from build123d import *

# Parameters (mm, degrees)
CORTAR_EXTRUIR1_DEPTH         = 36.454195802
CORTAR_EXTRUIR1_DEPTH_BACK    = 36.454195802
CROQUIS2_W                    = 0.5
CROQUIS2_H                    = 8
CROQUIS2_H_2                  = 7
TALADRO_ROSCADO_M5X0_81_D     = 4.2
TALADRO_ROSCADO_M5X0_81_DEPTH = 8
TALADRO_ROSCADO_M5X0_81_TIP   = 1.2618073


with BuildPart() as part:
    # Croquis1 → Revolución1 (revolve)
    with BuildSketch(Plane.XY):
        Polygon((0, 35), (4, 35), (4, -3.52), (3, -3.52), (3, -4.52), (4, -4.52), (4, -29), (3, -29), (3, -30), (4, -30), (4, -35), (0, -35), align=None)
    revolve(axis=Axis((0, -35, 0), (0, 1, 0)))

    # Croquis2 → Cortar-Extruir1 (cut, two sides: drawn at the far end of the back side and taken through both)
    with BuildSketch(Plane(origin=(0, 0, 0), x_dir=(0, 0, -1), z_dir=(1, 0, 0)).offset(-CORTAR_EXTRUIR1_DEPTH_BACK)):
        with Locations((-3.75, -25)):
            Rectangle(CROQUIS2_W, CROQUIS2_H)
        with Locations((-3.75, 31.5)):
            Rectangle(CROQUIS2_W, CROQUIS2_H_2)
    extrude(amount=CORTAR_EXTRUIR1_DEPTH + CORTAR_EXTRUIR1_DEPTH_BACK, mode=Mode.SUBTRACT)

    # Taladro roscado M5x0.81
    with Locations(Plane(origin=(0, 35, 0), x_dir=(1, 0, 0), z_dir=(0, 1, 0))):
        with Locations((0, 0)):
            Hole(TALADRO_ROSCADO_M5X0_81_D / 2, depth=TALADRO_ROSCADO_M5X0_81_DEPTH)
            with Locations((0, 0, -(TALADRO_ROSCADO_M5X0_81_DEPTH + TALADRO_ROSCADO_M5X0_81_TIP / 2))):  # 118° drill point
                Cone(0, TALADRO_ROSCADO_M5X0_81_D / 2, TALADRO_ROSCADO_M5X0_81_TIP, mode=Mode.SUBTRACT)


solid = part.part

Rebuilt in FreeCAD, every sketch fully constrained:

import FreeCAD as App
import Part
import Sketcher

doc = App.newDocument("Part")
body = doc.addObject("PartDesign::Body", "Body")

# Sketch on XY plane
sketch1 = body.newObject("Sketcher::SketchObject", "Sketch")
sketch1.AttachmentSupport = (doc.getObject("XY_Plane"), [""])
sketch1.MapMode = "FlatFace"
sketch1.addGeometry(Part.LineSegment(App.Vector(4, 35, 0), App.Vector(0, 35, 0)), False)
sketch1.addGeometry(Part.LineSegment(App.Vector(0, 35, 0), App.Vector(0, -35, 0)), False)
sketch1.addGeometry(Part.LineSegment(App.Vector(0, -35, 0), App.Vector(4, -35, 0)), False)
sketch1.addGeometry(Part.LineSegment(App.Vector(4, -35, 0), App.Vector(4, -30, 0)), False)
sketch1.addGeometry(Part.LineSegment(App.Vector(4, -30, 0), App.Vector(3, -30, 0)), False)
sketch1.addGeometry(Part.LineSegment(App.Vector(3, -30, 0), App.Vector(3, -29, 0)), False)
sketch1.addGeometry(Part.LineSegment(App.Vector(3, -29, 0), App.Vector(4, -29, 0)), False)
sketch1.addGeometry(Part.LineSegment(App.Vector(4, -29, 0), App.Vector(4, -4.5, 0)), False)
sketch1.addGeometry(Part.LineSegment(App.Vector(4, -4.5, 0), App.Vector(3, -4.5, 0)), False)
sketch1.addGeometry(Part.LineSegment(App.Vector(3, -4.5, 0), App.Vector(3, -3.5, 0)), False)
sketch1.addGeometry(Part.LineSegment(App.Vector(3, -3.5, 0), App.Vector(4, -3.5, 0)), False)
sketch1.addGeometry(Part.LineSegment(App.Vector(4, -3.5, 0), App.Vector(4, 35, 0)), False)
sketch1.addConstraint(Sketcher.Constraint("Coincident", 0, 2, 1, 1))
sketch1.addConstraint(Sketcher.Constraint("Coincident", 1, 2, 2, 1))
sketch1.addConstraint(Sketcher.Constraint("Coincident", 2, 2, 3, 1))
sketch1.addConstraint(Sketcher.Constraint("Coincident", 3, 2, 4, 1))
sketch1.addConstraint(Sketcher.Constraint("Coincident", 4, 2, 5, 1))
sketch1.addConstraint(Sketcher.Constraint("Coincident", 5, 2, 6, 1))
sketch1.addConstraint(Sketcher.Constraint("Coincident", 6, 2, 7, 1))
sketch1.addConstraint(Sketcher.Constraint("Coincident", 7, 2, 8, 1))
sketch1.addConstraint(Sketcher.Constraint("Coincident", 8, 2, 9, 1))
sketch1.addConstraint(Sketcher.Constraint("Coincident", 9, 2, 10, 1))
sketch1.addConstraint(Sketcher.Constraint("Coincident", 10, 2, 11, 1))
sketch1.addConstraint(Sketcher.Constraint("Coincident", 11, 2, 0, 1))
sketch1.addConstraint(Sketcher.Constraint("Horizontal", 0))
sketch1.addConstraint(Sketcher.Constraint("Vertical", 1))
sketch1.addConstraint(Sketcher.Constraint("Horizontal", 2))
sketch1.addConstraint(Sketcher.Constraint("Vertical", 3))
sketch1.addConstraint(Sketcher.Constraint("Horizontal", 4))
sketch1.addConstraint(Sketcher.Constraint("Vertical", 5))
sketch1.addConstraint(Sketcher.Constraint("Horizontal", 6))
sketch1.addConstraint(Sketcher.Constraint("Vertical", 7))
sketch1.addConstraint(Sketcher.Constraint("Horizontal", 8))
sketch1.addConstraint(Sketcher.Constraint("Vertical", 9))
sketch1.addConstraint(Sketcher.Constraint("Horizontal", 10))
sketch1.addConstraint(Sketcher.Constraint("Vertical", 11))
sketch1.addConstraint(Sketcher.Constraint("Symmetric", 0, 2, 1, 2, -1, 1))
sketch1.addConstraint(Sketcher.Constraint("Vertical", 3, 2, 6, 2))
sketch1.addConstraint(Sketcher.Constraint("Vertical", 5, 2, 8, 2))
sketch1.addConstraint(Sketcher.Constraint("Vertical", 7, 2, 10, 2))
sketch1.addConstraint(Sketcher.Constraint("Equal", 10, 5))
sketch1.addConstraint(Sketcher.Constraint("Equal", 5, 9))
sketch1.addConstraint(Sketcher.Constraint("DistanceX", 0, 2, 0, 1, 4.0))
sketch1.addConstraint(Sketcher.Constraint("DistanceX", 4, 2, 4, 1, 1.0))
sketch1.addConstraint(Sketcher.Constraint("DistanceY", 1, 2, 1, 1, 70.0))
sketch1.addConstraint(Sketcher.Constraint("DistanceY", 3, 1, 3, 2, 5.0))
sketch1.addConstraint(Sketcher.Constraint("DistanceY", 7, 1, 7, 2, 24.48))
revolution = body.newObject("PartDesign::Revolution", "Revolution")
revolution.Profile = sketch1
revolution.ReferenceAxis = (sketch1, ["V_Axis"])
revolution.Angle = 360

# Sketch on YZ plane
sketch2 = body.newObject("Sketcher::SketchObject", "Sketch001")
sketch2.AttachmentSupport = (doc.getObject("YZ_Plane"), [""])
sketch2.MapMode = "FlatFace"
sketch2.addGeometry(Part.LineSegment(App.Vector(-21, 4, 0), App.Vector(-29, 4, 0)), False)
sketch2.addGeometry(Part.LineSegment(App.Vector(-29, 4, 0), App.Vector(-29, 3.5, 0)), False)
sketch2.addGeometry(Part.LineSegment(App.Vector(-29, 3.5, 0), App.Vector(-21, 3.5, 0)), False)
sketch2.addGeometry(Part.LineSegment(App.Vector(-21, 3.5, 0), App.Vector(-21, 4, 0)), False)
sketch2.addGeometry(Part.LineSegment(App.Vector(35, 4, 0), App.Vector(28, 4, 0)), False)
sketch2.addGeometry(Part.LineSegment(App.Vector(28, 4, 0), App.Vector(28, 3.5, 0)), False)
sketch2.addGeometry(Part.LineSegment(App.Vector(28, 3.5, 0), App.Vector(35, 3.5, 0)), False)
sketch2.addGeometry(Part.LineSegment(App.Vector(35, 3.5, 0), App.Vector(35, 4, 0)), False)
sketch2.addConstraint(Sketcher.Constraint("Coincident", 0, 2, 1, 1))
sketch2.addConstraint(Sketcher.Constraint("Coincident", 1, 2, 2, 1))
sketch2.addConstraint(Sketcher.Constraint("Coincident", 2, 2, 3, 1))
sketch2.addConstraint(Sketcher.Constraint("Coincident", 3, 2, 0, 1))
sketch2.addConstraint(Sketcher.Constraint("Coincident", 4, 2, 5, 1))
sketch2.addConstraint(Sketcher.Constraint("Coincident", 5, 2, 6, 1))
sketch2.addConstraint(Sketcher.Constraint("Coincident", 6, 2, 7, 1))
sketch2.addConstraint(Sketcher.Constraint("Coincident", 7, 2, 4, 1))
sketch2.addConstraint(Sketcher.Constraint("Horizontal", 0))
sketch2.addConstraint(Sketcher.Constraint("Vertical", 1))
sketch2.addConstraint(Sketcher.Constraint("Horizontal", 2))
sketch2.addConstraint(Sketcher.Constraint("Vertical", 3))
sketch2.addConstraint(Sketcher.Constraint("Horizontal", 4))
sketch2.addConstraint(Sketcher.Constraint("Vertical", 5))
sketch2.addConstraint(Sketcher.Constraint("Horizontal", 6))
sketch2.addConstraint(Sketcher.Constraint("Vertical", 7))
sketch2.addConstraint(Sketcher.Constraint("Horizontal", 3, 2, 4, 2))
sketch2.addConstraint(Sketcher.Constraint("Horizontal", 2, 2, 5, 2))
sketch2.addConstraint(Sketcher.Constraint("DistanceX", 0, 2, 0, 1, 8.0))
sketch2.addConstraint(Sketcher.Constraint("DistanceX", 4, 2, 4, 1, 7.0))
sketch2.addConstraint(Sketcher.Constraint("DistanceY", 1, 2, 1, 1, 0.5))
sketch2.addConstraint(Sketcher.Constraint("DistanceX", 0, 2, -1, 1, 29.0))
sketch2.addConstraint(Sketcher.Constraint("DistanceY", -1, 1, 0, 2, 4.0))
sketch2.addConstraint(Sketcher.Constraint("DistanceX", -1, 1, 4, 2, 28.0))
pocket1 = body.newObject("PartDesign::Pocket", "Pocket")
pocket1.Profile = sketch2
pocket1.Type = "ThroughAll"
pocket1.Midplane = True

# Sketch on XZ plane
sketch3 = body.newObject("Sketcher::SketchObject", "Sketch002")
sketch3.AttachmentSupport = (doc.getObject("XZ_Plane"), [""])
sketch3.MapMode = "FlatFace"
sketch3.AttachmentOffset = App.Placement(App.Vector(0, 0, -35), App.Rotation())
sketch3.addGeometry(Part.Circle(App.Vector(0, 0, 0), App.Vector(0, 0, 1), 2.1), False)
sketch3.addConstraint(Sketcher.Constraint("Coincident", 0, 3, -1, 1))
sketch3.addConstraint(Sketcher.Constraint("Diameter", 0, 4.2))
doc.recompute()
hole = body.newObject("PartDesign::Hole", "Hole")
hole.Profile = sketch3
hole.ThreadType = "None"
hole.Diameter = 4.2
hole.DepthType = "Dimension"
hole.Depth = 8
hole.DrillPoint = "Angled"
hole.DrillPointAngle = 118
hole.Reversed = True

doc.recompute()
